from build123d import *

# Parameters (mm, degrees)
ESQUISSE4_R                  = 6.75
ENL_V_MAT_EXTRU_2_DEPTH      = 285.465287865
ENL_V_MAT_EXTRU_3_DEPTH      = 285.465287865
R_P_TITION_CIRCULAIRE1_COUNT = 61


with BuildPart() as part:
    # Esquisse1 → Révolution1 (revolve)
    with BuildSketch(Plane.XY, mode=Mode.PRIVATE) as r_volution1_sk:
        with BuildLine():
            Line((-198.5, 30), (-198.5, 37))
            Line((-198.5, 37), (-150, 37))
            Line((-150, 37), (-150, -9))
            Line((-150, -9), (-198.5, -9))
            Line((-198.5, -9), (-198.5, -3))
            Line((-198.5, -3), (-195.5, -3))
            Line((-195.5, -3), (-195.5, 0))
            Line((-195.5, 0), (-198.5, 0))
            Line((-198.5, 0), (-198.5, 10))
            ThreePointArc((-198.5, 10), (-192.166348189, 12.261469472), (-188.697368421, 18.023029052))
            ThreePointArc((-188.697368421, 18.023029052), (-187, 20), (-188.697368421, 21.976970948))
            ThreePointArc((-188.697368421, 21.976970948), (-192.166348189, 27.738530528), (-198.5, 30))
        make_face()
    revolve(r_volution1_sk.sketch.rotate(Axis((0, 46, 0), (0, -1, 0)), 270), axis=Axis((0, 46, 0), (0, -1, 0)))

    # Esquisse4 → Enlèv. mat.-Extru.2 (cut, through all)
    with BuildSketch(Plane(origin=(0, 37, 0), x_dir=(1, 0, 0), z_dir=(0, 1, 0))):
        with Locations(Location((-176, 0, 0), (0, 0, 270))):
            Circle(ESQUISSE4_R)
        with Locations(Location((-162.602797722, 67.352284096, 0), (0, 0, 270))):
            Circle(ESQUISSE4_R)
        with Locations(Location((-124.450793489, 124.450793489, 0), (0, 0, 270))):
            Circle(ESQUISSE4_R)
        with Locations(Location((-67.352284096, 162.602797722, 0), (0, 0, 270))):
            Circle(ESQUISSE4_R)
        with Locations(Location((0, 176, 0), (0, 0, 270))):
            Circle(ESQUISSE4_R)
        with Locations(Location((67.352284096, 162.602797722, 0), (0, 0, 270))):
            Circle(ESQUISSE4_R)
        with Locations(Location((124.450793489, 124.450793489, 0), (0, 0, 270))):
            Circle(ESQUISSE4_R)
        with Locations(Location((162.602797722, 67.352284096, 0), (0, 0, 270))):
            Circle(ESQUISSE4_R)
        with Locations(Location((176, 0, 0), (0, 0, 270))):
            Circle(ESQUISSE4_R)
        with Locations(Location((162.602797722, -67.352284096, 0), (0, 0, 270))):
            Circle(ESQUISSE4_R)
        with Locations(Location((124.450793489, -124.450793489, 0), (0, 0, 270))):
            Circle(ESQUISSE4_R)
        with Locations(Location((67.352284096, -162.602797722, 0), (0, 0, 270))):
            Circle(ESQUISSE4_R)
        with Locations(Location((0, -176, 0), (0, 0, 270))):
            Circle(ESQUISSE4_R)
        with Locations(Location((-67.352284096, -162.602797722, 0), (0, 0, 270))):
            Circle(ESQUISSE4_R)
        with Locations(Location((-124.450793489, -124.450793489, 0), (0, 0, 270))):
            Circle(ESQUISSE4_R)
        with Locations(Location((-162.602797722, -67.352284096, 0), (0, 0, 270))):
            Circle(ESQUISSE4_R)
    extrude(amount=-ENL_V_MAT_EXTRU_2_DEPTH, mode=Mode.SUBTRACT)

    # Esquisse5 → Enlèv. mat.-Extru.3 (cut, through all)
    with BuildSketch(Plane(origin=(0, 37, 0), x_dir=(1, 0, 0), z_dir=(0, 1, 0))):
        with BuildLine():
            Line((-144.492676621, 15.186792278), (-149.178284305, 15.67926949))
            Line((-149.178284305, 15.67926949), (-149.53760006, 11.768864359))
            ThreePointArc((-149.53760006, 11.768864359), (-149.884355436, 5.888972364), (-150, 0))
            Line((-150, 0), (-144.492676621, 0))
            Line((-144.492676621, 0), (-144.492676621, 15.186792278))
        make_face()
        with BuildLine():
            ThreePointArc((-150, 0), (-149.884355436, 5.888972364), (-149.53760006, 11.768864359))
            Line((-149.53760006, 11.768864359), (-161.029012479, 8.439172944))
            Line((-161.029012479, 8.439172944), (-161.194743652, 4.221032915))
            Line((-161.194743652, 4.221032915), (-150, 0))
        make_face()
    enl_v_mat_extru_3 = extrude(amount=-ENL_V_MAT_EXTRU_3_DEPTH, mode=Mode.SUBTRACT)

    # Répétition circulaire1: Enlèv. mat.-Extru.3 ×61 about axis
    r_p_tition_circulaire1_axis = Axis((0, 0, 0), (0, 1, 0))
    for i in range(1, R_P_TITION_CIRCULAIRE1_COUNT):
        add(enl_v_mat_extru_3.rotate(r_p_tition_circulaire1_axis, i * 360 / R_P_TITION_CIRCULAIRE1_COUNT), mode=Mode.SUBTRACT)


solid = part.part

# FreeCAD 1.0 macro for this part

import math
import FreeCAD as App
import Part
import Sketcher
Q = App.Units.Quantity


def add_polygon(sketch, points):
    """Adds a closed chain of lines whose ends are joined by coincident constraints."""
    first, n = sketch.GeometryCount, len(points)
    for a, b in zip(points, points[1:] + points[:1]):
        sketch.addGeometry(Part.LineSegment(App.Vector(*a, 0), App.Vector(*b, 0)), False)
    for i in range(n):
        sketch.addConstraint(Sketcher.Constraint("Coincident", first + i, 2, first + (i + 1) % n, 1))

doc = App.newDocument("Part")
body = doc.addObject("PartDesign::Body", "Body")

sketch1 = body.newObject("Sketcher::SketchObject", "Sketch")
sketch1.AttachmentSupport = (doc.getObject("XY_Plane"), [""])
sketch1.MapMode = "FlatFace"
sketch1.addGeometry([
    Part.LineSegment(App.Vector(-198.5, 37, 0), App.Vector(-198.5, 30, 0)),
    Part.ArcOfCircle(Part.Circle(App.Vector(-198.5, 20, 0), App.Vector(0, 0, 1), 10), math.radians(11), math.radians(90)),
    Part.ArcOfCircle(Part.Circle(App.Vector(-189, 20, 0), App.Vector(0, 0, 1), 2), math.radians(-81), math.radians(81)),
    Part.ArcOfCircle(Part.Circle(App.Vector(-198.5, 20, 0), App.Vector(0, 0, 1), 10), math.radians(-90), math.radians(-11)),
    Part.LineSegment(App.Vector(-198.5, 10, 0), App.Vector(-198.5, 0, 0)),
    Part.LineSegment(App.Vector(-198.5, 0, 0), App.Vector(-195.5, 0, 0)),
    Part.LineSegment(App.Vector(-195.5, 0, 0), App.Vector(-195.5, -3, 0)),
    Part.LineSegment(App.Vector(-195.5, -3, 0), App.Vector(-198.5, -3, 0)),
    Part.LineSegment(App.Vector(-198.5, -3, 0), App.Vector(-198.5, -9, 0)),
    Part.LineSegment(App.Vector(-198.5, -9, 0), App.Vector(-150, -9, 0)),
    Part.LineSegment(App.Vector(-150, -9, 0), App.Vector(-150, 37, 0)),
    Part.LineSegment(App.Vector(-150, 37, 0), App.Vector(-198.5, 37, 0)),
], False)
sketch1.addConstraint([
    Sketcher.Constraint("Coincident", 0, 2, 1, 2),
    Sketcher.Constraint("Coincident", 1, 1, 2, 2),
    Sketcher.Constraint("Coincident", 2, 1, 3, 2),
    Sketcher.Constraint("Coincident", 3, 1, 4, 1),
    Sketcher.Constraint("Coincident", 4, 2, 5, 1),
    Sketcher.Constraint("Coincident", 5, 2, 6, 1),
    Sketcher.Constraint("Coincident", 6, 2, 7, 1),
    Sketcher.Constraint("Coincident", 7, 2, 8, 1),
    Sketcher.Constraint("Coincident", 8, 2, 9, 1),
    Sketcher.Constraint("Coincident", 9, 2, 10, 1),
    Sketcher.Constraint("Coincident", 10, 2, 11, 1),
    Sketcher.Constraint("Coincident", 11, 2, 0, 1),
    Sketcher.Constraint("Vertical", 0),
    Sketcher.Constraint("Vertical", 4),
    Sketcher.Constraint("Horizontal", 5),
    Sketcher.Constraint("Vertical", 6),
    Sketcher.Constraint("Horizontal", 7),
    Sketcher.Constraint("Vertical", 8),
    Sketcher.Constraint("Horizontal", 9),
    Sketcher.Constraint("Vertical", 10),
    Sketcher.Constraint("Horizontal", 11),
    Sketcher.Constraint("Coincident", 3, 3, 1, 3),
    Sketcher.Constraint("Equal", 1, 3),
    Sketcher.Constraint("PointOnObject", 4, 2, -1),
    Sketcher.Constraint("Horizontal", 1, 3, 2, 3),
    Sketcher.Constraint("Vertical", 3, 3, 0, 2),
    Sketcher.Constraint("Vertical", 0, 2, 3, 1),
    Sketcher.Constraint("Vertical", 4, 2, 7, 2),
    Sketcher.Constraint("Equal", 7, 6),
    Sketcher.Constraint("Radius", 1, 10.0),
    Sketcher.Constraint("Radius", 2, 2.0),
    Sketcher.Constraint("DistanceX", 5, 1, 5, 2, 3.0),
    Sketcher.Constraint("DistanceY", 0, 2, 0, 1, 7.0),
    Sketcher.Constraint("DistanceY", 4, 2, 4, 1, 10.0),
    Sketcher.Constraint("DistanceY", 8, 2, 8, 1, 6.0),
    Sketcher.Constraint("DistanceX", 9, 1, 9, 2, 48.5),
    Sketcher.Constraint("DistanceX", 2, 3, -1, 1, 189.0),
    Sketcher.Constraint("DistanceX", 9, 2, -1, 1, 150.0),
])
revolution = body.newObject("PartDesign::Revolution", "Revolution")
revolution.Profile = sketch1
revolution.ReferenceAxis = (sketch1, ["V_Axis"])
revolution.Angle = 360

sketch2 = body.newObject("Sketcher::SketchObject", "Sketch001")
sketch2.AttachmentSupport = (doc.getObject("XZ_Plane"), [""])
sketch2.MapMode = "FlatFace"
sketch2.AttachmentOffset = App.Placement(App.Vector(0, 0, -37), App.Rotation())
sketch2.addGeometry([
    Part.Circle(App.Vector(-176, 0, 0), App.Vector(0, 0, 1), 7),
    Part.Circle(App.Vector(-163, -67, 0), App.Vector(0, 0, 1), 7),
    Part.Circle(App.Vector(-124, -124, 0), App.Vector(0, 0, 1), 7),
    Part.Circle(App.Vector(-67, -163, 0), App.Vector(0, 0, 1), 7),
    Part.Circle(App.Vector(0, -176, 0), App.Vector(0, 0, 1), 7),
    Part.Circle(App.Vector(67, -163, 0), App.Vector(0, 0, 1), 7),
    Part.Circle(App.Vector(124, -124, 0), App.Vector(0, 0, 1), 7),
    Part.Circle(App.Vector(163, -67, 0), App.Vector(0, 0, 1), 7),
    Part.Circle(App.Vector(176, 0, 0), App.Vector(0, 0, 1), 7),
    Part.Circle(App.Vector(163, 67, 0), App.Vector(0, 0, 1), 7),
    Part.Circle(App.Vector(124, 124, 0), App.Vector(0, 0, 1), 7),
    Part.Circle(App.Vector(67, 163, 0), App.Vector(0, 0, 1), 7),
    Part.Circle(App.Vector(0, 176, 0), App.Vector(0, 0, 1), 7),
    Part.Circle(App.Vector(-67, 163, 0), App.Vector(0, 0, 1), 7),
    Part.Circle(App.Vector(-124, 124, 0), App.Vector(0, 0, 1), 7),
    Part.Circle(App.Vector(-163, 67, 0), App.Vector(0, 0, 1), 7),
], False)
sketch2.addConstraint([
    Sketcher.Constraint("Equal", 0, 1),
    Sketcher.Constraint("Equal", 1, 2),
    Sketcher.Constraint("Equal", 2, 3),
    Sketcher.Constraint("Equal", 3, 4),
    Sketcher.Constraint("Equal", 4, 5),
    Sketcher.Constraint("Equal", 5, 6),
    Sketcher.Constraint("Equal", 6, 7),
    Sketcher.Constraint("Equal", 7, 8),
    Sketcher.Constraint("Equal", 8, 9),
    Sketcher.Constraint("Equal", 9, 10),
    Sketcher.Constraint("Equal", 10, 11),
    Sketcher.Constraint("Equal", 11, 12),
    Sketcher.Constraint("Equal", 12, 13),
    Sketcher.Constraint("Equal", 13, 14),
    Sketcher.Constraint("Equal", 14, 15),
    Sketcher.Constraint("Symmetric", 0, 3, 8, 3, -1, 1),
    Sketcher.Constraint("Symmetric", 1, 3, 9, 3, -1, 1),
    Sketcher.Constraint("Symmetric", 2, 3, 10, 3, -1, 1),
    Sketcher.Constraint("Symmetric", 3, 3, 11, 3, -1, 1),
    Sketcher.Constraint("Symmetric", 4, 3, 12, 3, -1, 1),
    Sketcher.Constraint("Symmetric", 5, 3, 13, 3, -1, 1),
    Sketcher.Constraint("Symmetric", 6, 3, 14, 3, -1, 1),
    Sketcher.Constraint("Symmetric", 7, 3, 15, 3, -1, 1),
    Sketcher.Constraint("Symmetric", 3, 3, 5, 3, -2),
    Sketcher.Constraint("Symmetric", 2, 3, 6, 3, -2),
    Sketcher.Constraint("Symmetric", 1, 3, 7, 3, -2),
    Sketcher.Constraint("PointOnObject", 0, 3, -1),
    Sketcher.Constraint("PointOnObject", 4, 3, -2),
    Sketcher.Constraint("Diameter", 0, 13.5),
    Sketcher.Constraint("DistanceX", 0, 3, -1, 1, 176.0),
    Sketcher.Constraint("DistanceY", 4, 3, -1, 1, 176.0),
    Sketcher.Constraint("DistanceY", 2, 3, 1, 3, 57.098509),
    Sketcher.Constraint("DistanceX", 2, 3, 3, 3, 57.098509),
    Sketcher.Constraint("DistanceX", 3, 3, 5, 3, 134.704568),
    Sketcher.Constraint("DistanceX", 1, 3, 5, 3, 229.955082),
    Sketcher.Constraint("DistanceY", 7, 3, 9, 3, 134.704568),
    Sketcher.Constraint("DistanceY", 5, 3, 9, 3, 229.955082),
])
pocket1 = body.newObject("PartDesign::Pocket", "Pocket")
pocket1.Profile = sketch2
pocket1.Type = "ThroughAll"
pocket1.Reversed = True

sketch3 = body.newObject("Sketcher::SketchObject", "Sketch002")
sketch3.AttachmentSupport = (doc.getObject("XZ_Plane"), [""])
sketch3.MapMode = "FlatFace"
sketch3.AttachmentOffset = App.Placement(App.Vector(0, 0, -37), App.Rotation())
add_polygon(sketch3, [(-144.5, -15.2), (-149.2, -15.7), (-149.5, -11.8), (-161, -8.4), (-161.2, -4.2), (-150, 0), (-144.5, 0)])
sketch3.addConstraint([
    Sketcher.Constraint("Horizontal", 5),
    Sketcher.Constraint("Vertical", 6),
    Sketcher.Constraint("PointOnObject", 4, 2, -1),
    Sketcher.Constraint("Equal", 2, 4),
    Sketcher.Constraint("Angle", 0, Q("-174 deg")),
    Sketcher.Constraint("DistanceX", 4, 2, -1, 1, 150.0),
    Sketcher.Constraint("Angle", 1, Q("95.25 deg")),
    Sketcher.Constraint("Angle", 3, Q("92.25 deg")),
    Sketcher.Constraint("DistanceX", 1, 2, -1, 1, 149.5376),
    Sketcher.Constraint("Distance", 1, 3.926879),
    Sketcher.Constraint("Distance", 2, 11.964088),
    Sketcher.Constraint("DistanceX", 5, 1, 5, 2, 5.507323),
    Sketcher.Constraint("DistanceY", 6, 2, 6, 1, 15.186792),
    Sketcher.Constraint("DistanceY", 1, 2, 2, 2, 3.329691),
])
pocket2 = body.newObject("PartDesign::Pocket", "Pocket001")
pocket2.Profile = sketch3
pocket2.Type = "ThroughAll"
pocket2.Reversed = True
doc.recompute()

polarpattern = body.newObject("PartDesign::PolarPattern", "PolarPattern")
polarpattern.Originals = [pocket2]
polarpattern.Axis = (doc.getObject("Y_Axis"), [""])
polarpattern.Angle = 360
polarpattern.Occurrences = 61
body.Tip = polarpattern

doc.recompute()
